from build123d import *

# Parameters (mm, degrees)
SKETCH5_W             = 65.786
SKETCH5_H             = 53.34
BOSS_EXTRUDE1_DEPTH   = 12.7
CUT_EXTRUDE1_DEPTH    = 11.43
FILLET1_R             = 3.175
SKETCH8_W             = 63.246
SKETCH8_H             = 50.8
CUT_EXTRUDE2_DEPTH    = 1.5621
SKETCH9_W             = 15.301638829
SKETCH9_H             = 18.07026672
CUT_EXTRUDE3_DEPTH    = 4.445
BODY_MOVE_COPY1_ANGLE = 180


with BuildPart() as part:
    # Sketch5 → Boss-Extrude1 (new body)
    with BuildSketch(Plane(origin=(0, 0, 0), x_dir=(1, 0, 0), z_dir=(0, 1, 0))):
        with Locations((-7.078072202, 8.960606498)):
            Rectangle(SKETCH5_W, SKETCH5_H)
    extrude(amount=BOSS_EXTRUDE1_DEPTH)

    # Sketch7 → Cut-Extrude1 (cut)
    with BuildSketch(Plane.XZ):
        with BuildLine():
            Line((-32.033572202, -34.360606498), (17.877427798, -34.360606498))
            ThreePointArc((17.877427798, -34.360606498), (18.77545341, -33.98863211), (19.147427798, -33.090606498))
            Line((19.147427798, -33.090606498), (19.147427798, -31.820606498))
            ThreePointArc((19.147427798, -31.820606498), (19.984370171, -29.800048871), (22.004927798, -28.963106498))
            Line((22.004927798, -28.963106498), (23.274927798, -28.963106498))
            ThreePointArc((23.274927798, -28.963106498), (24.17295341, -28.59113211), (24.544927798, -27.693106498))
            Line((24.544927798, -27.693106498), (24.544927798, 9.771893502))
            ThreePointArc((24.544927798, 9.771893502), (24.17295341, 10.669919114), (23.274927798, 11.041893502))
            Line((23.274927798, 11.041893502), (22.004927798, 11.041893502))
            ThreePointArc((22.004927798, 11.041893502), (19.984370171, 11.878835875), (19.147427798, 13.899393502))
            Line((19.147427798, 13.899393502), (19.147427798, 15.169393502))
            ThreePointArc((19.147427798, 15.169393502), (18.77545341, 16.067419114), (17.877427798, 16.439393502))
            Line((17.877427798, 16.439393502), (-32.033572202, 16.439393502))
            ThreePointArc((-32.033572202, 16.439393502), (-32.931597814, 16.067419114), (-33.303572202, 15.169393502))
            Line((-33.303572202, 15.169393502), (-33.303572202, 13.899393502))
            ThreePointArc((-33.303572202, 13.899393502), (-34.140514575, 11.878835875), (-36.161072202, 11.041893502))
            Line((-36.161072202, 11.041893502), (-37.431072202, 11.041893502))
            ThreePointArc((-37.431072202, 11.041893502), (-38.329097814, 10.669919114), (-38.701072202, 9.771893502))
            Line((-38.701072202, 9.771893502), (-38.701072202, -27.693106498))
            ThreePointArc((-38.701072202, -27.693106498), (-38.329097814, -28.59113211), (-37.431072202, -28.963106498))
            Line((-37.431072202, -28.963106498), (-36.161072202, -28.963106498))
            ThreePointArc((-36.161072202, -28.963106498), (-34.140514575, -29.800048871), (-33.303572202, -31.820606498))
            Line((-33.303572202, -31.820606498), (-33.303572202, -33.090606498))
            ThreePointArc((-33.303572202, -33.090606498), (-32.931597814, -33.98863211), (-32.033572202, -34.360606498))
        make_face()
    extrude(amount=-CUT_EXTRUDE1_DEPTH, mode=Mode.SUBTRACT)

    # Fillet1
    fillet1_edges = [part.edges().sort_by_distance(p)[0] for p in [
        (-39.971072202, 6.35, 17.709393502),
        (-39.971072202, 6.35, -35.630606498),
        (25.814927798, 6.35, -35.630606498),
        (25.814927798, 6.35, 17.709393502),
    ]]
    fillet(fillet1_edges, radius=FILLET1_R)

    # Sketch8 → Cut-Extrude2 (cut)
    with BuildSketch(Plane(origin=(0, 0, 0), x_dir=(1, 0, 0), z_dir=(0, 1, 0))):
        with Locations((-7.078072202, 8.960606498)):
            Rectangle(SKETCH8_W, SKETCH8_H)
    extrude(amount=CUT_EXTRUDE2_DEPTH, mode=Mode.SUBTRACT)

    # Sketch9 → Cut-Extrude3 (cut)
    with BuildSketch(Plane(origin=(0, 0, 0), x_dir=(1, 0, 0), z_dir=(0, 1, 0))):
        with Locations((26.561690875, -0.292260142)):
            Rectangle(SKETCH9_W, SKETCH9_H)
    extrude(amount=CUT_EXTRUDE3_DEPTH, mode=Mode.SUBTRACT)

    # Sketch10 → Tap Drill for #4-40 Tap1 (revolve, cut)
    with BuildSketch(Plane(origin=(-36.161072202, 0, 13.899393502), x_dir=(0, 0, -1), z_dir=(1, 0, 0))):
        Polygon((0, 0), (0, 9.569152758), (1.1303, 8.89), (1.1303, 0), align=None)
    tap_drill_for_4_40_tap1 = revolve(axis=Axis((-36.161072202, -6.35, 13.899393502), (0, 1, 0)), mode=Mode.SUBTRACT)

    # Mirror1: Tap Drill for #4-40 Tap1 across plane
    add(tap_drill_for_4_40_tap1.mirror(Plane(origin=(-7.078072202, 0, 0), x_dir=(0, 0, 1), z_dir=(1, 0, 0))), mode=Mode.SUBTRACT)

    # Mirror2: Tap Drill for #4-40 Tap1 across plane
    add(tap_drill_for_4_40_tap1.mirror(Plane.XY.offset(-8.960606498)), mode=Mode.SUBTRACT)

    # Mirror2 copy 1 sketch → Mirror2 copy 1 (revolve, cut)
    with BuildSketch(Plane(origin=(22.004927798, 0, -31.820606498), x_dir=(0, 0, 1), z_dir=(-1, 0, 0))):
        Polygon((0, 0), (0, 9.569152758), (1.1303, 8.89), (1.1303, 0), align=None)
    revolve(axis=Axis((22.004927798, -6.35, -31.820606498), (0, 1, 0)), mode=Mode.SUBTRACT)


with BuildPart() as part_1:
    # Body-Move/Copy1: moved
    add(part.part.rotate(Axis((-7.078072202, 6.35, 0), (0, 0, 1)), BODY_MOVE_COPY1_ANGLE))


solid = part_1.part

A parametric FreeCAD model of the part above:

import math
import FreeCAD as App
import Part
import Sketcher
from FreeCAD import Vector
Q = App.Units.Quantity


def edges_at(feature, points):
    """Names of the edges that pass closest to the given points."""
    edges = feature.Shape.Edges
    near = lambda p: min(range(len(edges)), key=lambda i: edges[i].distToShape(Part.Vertex(*p))[0])
    return sorted({f"Edge{near(p) + 1}" for p in points})


def add_polygon(sketch, points):
    """Adds a closed chain of lines whose ends are joined by coincident constraints."""
    first, n = sketch.GeometryCount, len(points)
    for a, b in zip(points, points[1:] + points[:1]):
        sketch.addGeometry(Part.LineSegment(App.Vector(*a, 0), App.Vector(*b, 0)), False)
    for i in range(n):
        sketch.addConstraint(Sketcher.Constraint("Coincident", first + i, 2, first + (i + 1) % n, 1))

doc = App.newDocument("Part")
body = doc.addObject("PartDesign::Body", "Body")

sketch1 = doc.addObject("Sketcher::SketchObject", "Sketch")
body.addObject(sketch1)
sketch1.AttachmentSupport = (doc.XZ_Plane, [""])
sketch1.MapMode = "FlatFace"
add_polygon(sketch1, [(-40, -36), (-40, 18), (26, 18), (26, -36)])
sketch1.addConstraint(Sketcher.Constraint("Vertical", 0))
sketch1.addConstraint(Sketcher.Constraint("Horizontal", 1))
sketch1.addConstraint(Sketcher.Constraint("Vertical", 2))
sketch1.addConstraint(Sketcher.Constraint("Horizontal", 3))
sketch1.addConstraint(Sketcher.Constraint("DistanceY", 0, 1, 0, 2, Q("2.1 in")))
sketch1.addConstraint(Sketcher.Constraint("DistanceX", 1, 1, 1, 2, Q("2.59 in")))
sketch1.addConstraint(Sketcher.Constraint("DistanceX", 0, 2, -1, 1, 39.971072))
sketch1.addConstraint(Sketcher.Constraint("DistanceY", -1, 1, 0, 2, 17.709394))
pad1 = doc.addObject("PartDesign::Pad", "Pad")
body.addObject(pad1)
pad1.Profile = sketch1
pad1.Length = Q("0.5 in")
pad1.Reversed = True

sketch2 = doc.addObject("Sketcher::SketchObject", "Sketch001")
body.addObject(sketch2)
sketch2.AttachmentSupport = (doc.XZ_Plane, [""])
sketch2.MapMode = "FlatFace"
sketch2.addGeometry(Part.LineSegment(Vector(-32, -34.4, 0), Vector(17.9, -34.4, 0)), False)
sketch2.addGeometry(Part.ArcOfCircle(Part.Circle(Vector(17.9, -33.1, 0), Vector(0, 0, 1), 1.3), math.radians(-90), math.radians(0)), False)
sketch2.addGeometry(Part.LineSegment(Vector(19.1, -33.1, 0), Vector(19.1, -31.8, 0)), False)
sketch2.addGeometry(Part.ArcOfCircle(Part.Circle(Vector(22, -31.8, 0), Vector(0, 0, 1), 2.9), math.radians(90), math.radians(180)), False)
sketch2.addGeometry(Part.LineSegment(Vector(22, -29, 0), Vector(23.3, -29, 0)), False)
sketch2.addGeometry(Part.ArcOfCircle(Part.Circle(Vector(23.3, -27.7, 0), Vector(0, 0, 1), 1.3), math.radians(-90), math.radians(0)), False)
sketch2.addGeometry(Part.LineSegment(Vector(24.5, -27.7, 0), Vector(24.5, 9.8, 0)), False)
sketch2.addGeometry(Part.ArcOfCircle(Part.Circle(Vector(23.3, 9.8, 0), Vector(0, 0, 1), 1.3), math.radians(0), math.radians(90)), False)
sketch2.addGeometry(Part.LineSegment(Vector(23.3, 11, 0), Vector(22, 11, 0)), False)
sketch2.addGeometry(Part.ArcOfCircle(Part.Circle(Vector(22, 13.9, 0), Vector(0, 0, 1), 2.9), math.radians(-180), math.radians(-90)), False)
sketch2.addGeometry(Part.LineSegment(Vector(19.1, 13.9, 0), Vector(19.1, 15.2, 0)), False)
sketch2.addGeometry(Part.ArcOfCircle(Part.Circle(Vector(17.9, 15.2, 0), Vector(0, 0, 1), 1.3), math.radians(0), math.radians(90)), False)
sketch2.addGeometry(Part.LineSegment(Vector(17.9, 16.4, 0), Vector(-32, 16.4, 0)), False)
sketch2.addGeometry(Part.ArcOfCircle(Part.Circle(Vector(-32, 15.2, 0), Vector(0, 0, 1), 1.3), math.radians(90), math.radians(180)), False)
sketch2.addGeometry(Part.LineSegment(Vector(-33.3, 15.2, 0), Vector(-33.3, 13.9, 0)), False)
sketch2.addGeometry(Part.ArcOfCircle(Part.Circle(Vector(-36.2, 13.9, 0), Vector(0, 0, 1), 2.9), math.radians(-90), math.radians(0)), False)
sketch2.addGeometry(Part.LineSegment(Vector(-36.2, 11, 0), Vector(-37.4, 11, 0)), False)
sketch2.addGeometry(Part.ArcOfCircle(Part.Circle(Vector(-37.4, 9.8, 0), Vector(0, 0, 1), 1.3), math.radians(90), math.radians(180)), False)
sketch2.addGeometry(Part.LineSegment(Vector(-38.7, 9.8, 0), Vector(-38.7, -27.7, 0)), False)
sketch2.addGeometry(Part.ArcOfCircle(Part.Circle(Vector(-37.4, -27.7, 0), Vector(0, 0, 1), 1.3), math.radians(180), math.radians(270)), False)
sketch2.addGeometry(Part.LineSegment(Vector(-37.4, -29, 0), Vector(-36.2, -29, 0)), False)
sketch2.addGeometry(Part.ArcOfCircle(Part.Circle(Vector(-36.2, -31.8, 0), Vector(0, 0, 1), 2.9), math.radians(0), math.radians(90)), False)
sketch2.addGeometry(Part.LineSegment(Vector(-33.3, -31.8, 0), Vector(-33.3, -33.1, 0)), False)
sketch2.addGeometry(Part.ArcOfCircle(Part.Circle(Vector(-32, -33.1, 0), Vector(0, 0, 1), 1.3), math.radians(180), math.radians(270)), False)
sketch2.addConstraint(Sketcher.Constraint("Tangent", 0, 2, 1, 1))
sketch2.addConstraint(Sketcher.Constraint("Tangent", 1, 2, 2, 1))
sketch2.addConstraint(Sketcher.Constraint("Tangent", 2, 2, 3, 2))
sketch2.addConstraint(Sketcher.Constraint("Tangent", 3, 1, 4, 1))
sketch2.addConstraint(Sketcher.Constraint("Tangent", 4, 2, 5, 1))
sketch2.addConstraint(Sketcher.Constraint("Tangent", 5, 2, 6, 1))
sketch2.addConstraint(Sketcher.Constraint("Tangent", 6, 2, 7, 1))
sketch2.addConstraint(Sketcher.Constraint("Tangent", 7, 2, 8, 1))
sketch2.addConstraint(Sketcher.Constraint("Tangent", 8, 2, 9, 2))
sketch2.addConstraint(Sketcher.Constraint("Tangent", 9, 1, 10, 1))
sketch2.addConstraint(Sketcher.Constraint("Tangent", 10, 2, 11, 1))
sketch2.addConstraint(Sketcher.Constraint("Tangent", 11, 2, 12, 1))
sketch2.addConstraint(Sketcher.Constraint("Tangent", 12, 2, 13, 1))
sketch2.addConstraint(Sketcher.Constraint("Tangent", 13, 2, 14, 1))
sketch2.addConstraint(Sketcher.Constraint("Tangent", 14, 2, 15, 2))
sketch2.addConstraint(Sketcher.Constraint("Tangent", 15, 1, 16, 1))
sketch2.addConstraint(Sketcher.Constraint("Tangent", 16, 2, 17, 1))
sketch2.addConstraint(Sketcher.Constraint("Tangent", 17, 2, 18, 1))
sketch2.addConstraint(Sketcher.Constraint("Tangent", 18, 2, 19, 1))
sketch2.addConstraint(Sketcher.Constraint("Tangent", 19, 2, 20, 1))
sketch2.addConstraint(Sketcher.Constraint("Tangent", 20, 2, 21, 2))
sketch2.addConstraint(Sketcher.Constraint("Tangent", 21, 1, 22, 1))
sketch2.addConstraint(Sketcher.Constraint("Tangent", 22, 2, 23, 1))
sketch2.addConstraint(Sketcher.Constraint("Tangent", 23, 2, 0, 1))
sketch2.addConstraint(Sketcher.Constraint("Horizontal", 0))
sketch2.addConstraint(Sketcher.Constraint("Vertical", 2))
sketch2.addConstraint(Sketcher.Constraint("Horizontal", 4))
sketch2.addConstraint(Sketcher.Constraint("Vertical", 6))
sketch2.addConstraint(Sketcher.Constraint("Horizontal", 8))
sketch2.addConstraint(Sketcher.Constraint("Vertical", 10))
sketch2.addConstraint(Sketcher.Constraint("Horizontal", 12))
sketch2.addConstraint(Sketcher.Constraint("Vertical", 14))
sketch2.addConstraint(Sketcher.Constraint("Horizontal", 16))
sketch2.addConstraint(Sketcher.Constraint("Vertical", 18))
sketch2.addConstraint(Sketcher.Constraint("Horizontal", 20))
sketch2.addConstraint(Sketcher.Constraint("Vertical", 22))
sketch2.addConstraint(Sketcher.Constraint("Equal", 1, 5))
sketch2.addConstraint(Sketcher.Constraint("Equal", 5, 7))
sketch2.addConstraint(Sketcher.Constraint("Equal", 3, 9))
sketch2.addConstraint(Sketcher.Constraint("Equal", 7, 11))
sketch2.addConstraint(Sketcher.Constraint("Equal", 11, 13))
sketch2.addConstraint(Sketcher.Constraint("Equal", 9, 15))
sketch2.addConstraint(Sketcher.Constraint("Equal", 13, 17))
sketch2.addConstraint(Sketcher.Constraint("Equal", 17, 19))
sketch2.addConstraint(Sketcher.Constraint("Equal", 15, 21))
sketch2.addConstraint(Sketcher.Constraint("Equal", 19, 23))
sketch2.addConstraint(Sketcher.Constraint("Horizontal", 9, 3, 15, 3))
sketch2.addConstraint(Sketcher.Constraint("Horizontal", 5, 3, 19, 3))
sketch2.addConstraint(Sketcher.Constraint("Vertical", 3, 3, 9, 3))
sketch2.addConstraint(Sketcher.Constraint("Vertical", 15, 3, 21, 3))
sketch2.addConstraint(Sketcher.Constraint("Equal", 8, 16))
sketch2.addConstraint(Sketcher.Constraint("Equal", 20, 2))
sketch2.addConstraint(Sketcher.Constraint("Equal", 2, 10))
sketch2.addConstraint(Sketcher.Constraint("Radius", 1, Q("0.05 in")))
sketch2.addConstraint(Sketcher.Constraint("DistanceX", 4, 1, 4, 2, Q("0.05 in")))
sketch2.addConstraint(Sketcher.Constraint("Radius", 3, Q("0.1125 in")))
sketch2.addConstraint(Sketcher.Constraint("DistanceY", 3, 3, 9, 3, Q("1.8 in")))
sketch2.addConstraint(Sketcher.Constraint("DistanceX", 0, 1, 0, 2, Q("1.965 in")))
sketch2.addConstraint(Sketcher.Constraint("DistanceX", -1, 1, 1, 3, 17.877428))
sketch2.addConstraint(Sketcher.Constraint("DistanceY", 1, 3, -1, 1, 33.090606))
pocket1 = doc.addObject("PartDesign::Pocket", "Pocket")
body.addObject(pocket1)
pocket1.Profile = sketch2
pocket1.Length = Q("0.45 in")
doc.recompute()

fillet = doc.addObject("PartDesign::Fillet", "Fillet")
body.addObject(fillet)
fillet.Base = (pocket1, edges_at(pocket1, [
    (-39.971, 6.35, 17.709),
    (-39.971, 6.35, -35.631),
    (25.815, 6.35, -35.631),
    (25.815, 6.35, 17.709),
]))
fillet.Radius = Q("0.125 in")

sketch3 = doc.addObject("Sketcher::SketchObject", "Sketch002")
body.addObject(sketch3)
sketch3.AttachmentSupport = (doc.XZ_Plane, [""])
sketch3.MapMode = "FlatFace"
add_polygon(sketch3, [(-39, -34), (-39, 16), (25, 16), (25, -34)])
sketch3.addConstraint(Sketcher.Constraint("Vertical", 0))
sketch3.addConstraint(Sketcher.Constraint("Horizontal", 1))
sketch3.addConstraint(Sketcher.Constraint("Vertical", 2))
sketch3.addConstraint(Sketcher.Constraint("Horizontal", 3))
sketch3.addConstraint(Sketcher.Constraint("DistanceY", 0, 1, 0, 2, Q("2 in")))
sketch3.addConstraint(Sketcher.Constraint("DistanceX", 1, 1, 1, 2, Q("2.49 in")))
sketch3.addConstraint(Sketcher.Constraint("DistanceX", 0, 2, -1, 1, 38.701072))
sketch3.addConstraint(Sketcher.Constraint("DistanceY", -1, 1, 0, 2, 16.439394))
pocket2 = doc.addObject("PartDesign::Pocket", "Pocket001")
body.addObject(pocket2)
pocket2.Profile = sketch3
pocket2.Length = Q("0.0615 in")

sketch4 = doc.addObject("Sketcher::SketchObject", "Sketch003")
body.addObject(sketch4)
sketch4.AttachmentSupport = (doc.XZ_Plane, [""])
sketch4.MapMode = "FlatFace"
add_polygon(sketch4, [(19, -9), (19, 9), (34, 9), (34, -9)])
sketch4.addConstraint(Sketcher.Constraint("Vertical", 0))
sketch4.addConstraint(Sketcher.Constraint("Horizontal", 1))
sketch4.addConstraint(Sketcher.Constraint("Vertical", 2))
sketch4.addConstraint(Sketcher.Constraint("Horizontal", 3))
sketch4.addConstraint(Sketcher.Constraint("DistanceX", 1, 1, 1, 2, 15.301639))
sketch4.addConstraint(Sketcher.Constraint("DistanceY", 0, 1, 0, 2, 18.070267))
sketch4.addConstraint(Sketcher.Constraint("DistanceX", -1, 1, 0, 2, 18.910871))
sketch4.addConstraint(Sketcher.Constraint("DistanceY", -1, 1, 0, 2, 9.327394))
pocket3 = doc.addObject("PartDesign::Pocket", "Pocket002")
body.addObject(pocket3)
pocket3.Profile = sketch4
pocket3.Length = Q("0.175 in")

sketch5 = doc.addObject("Sketcher::SketchObject", "Sketch004")
body.addObject(sketch5)
sketch5.AttachmentSupport = (doc.YZ_Plane, [""])
sketch5.MapMode = "FlatFace"
sketch5.AttachmentOffset = App.Placement(Vector(0, 0, -36.161072), App.Rotation())
add_polygon(sketch5, [(9.6, 13.9), (0, 13.9), (0, 12.8), (8.9, 12.8)])
sketch5.addGeometry(Part.LineSegment(Vector(0, 13.9, 0), Vector(9.6, 13.9, 0)), True)
sketch5.addConstraint(Sketcher.Constraint("Horizontal", 0))
sketch5.addConstraint(Sketcher.Constraint("Vertical", 1))
sketch5.addConstraint(Sketcher.Constraint("Horizontal", 2))
sketch5.addConstraint(Sketcher.Constraint("Horizontal", 4))
sketch5.addConstraint(Sketcher.Constraint("Coincident", 4, 1, 0, 2))
sketch5.addConstraint(Sketcher.Constraint("PointOnObject", 0, 2, -2))
sketch5.addConstraint(Sketcher.Constraint("Equal", 0, 4))
sketch5.addConstraint(Sketcher.Constraint("Angle", 3, Q("59 deg")))
sketch5.addConstraint(Sketcher.Constraint("DistanceX", 2, 1, 2, 2, Q("0.35 in")))
sketch5.addConstraint(Sketcher.Constraint("DistanceY", 1, 2, 1, 1, Q("0.0445 in")))
sketch5.addConstraint(Sketcher.Constraint("DistanceY", -1, 1, 0, 2, 13.899394))
groove = doc.addObject("PartDesign::Groove", "Groove")
body.addObject(groove)
groove.Profile = sketch5
groove.ReferenceAxis = (sketch5, ["Axis0"])
groove.Angle = 360
doc.recompute()

datumplane = doc.addObject("PartDesign::Plane", "DatumPlane")
body.addObject(datumplane)
datumplane.AttachmentSupport = (doc.YZ_Plane, [""])
datumplane.MapMode = "FlatFace"
datumplane.AttachmentOffset = App.Placement(Vector(0, 0, -7.078072), App.Rotation())
mirrored = doc.addObject("PartDesign::Mirrored", "Mirrored")
body.addObject(mirrored)
mirrored.Originals = [groove]
mirrored.MirrorPlane = (datumplane, [""])
body.Tip = mirrored
doc.recompute()

datumplane2 = doc.addObject("PartDesign::Plane", "DatumPlane001")
body.addObject(datumplane2)
datumplane2.AttachmentSupport = (doc.XY_Plane, [""])
datumplane2.MapMode = "FlatFace"
datumplane2.AttachmentOffset = App.Placement(Vector(0, 0, -8.960606), App.Rotation())
mirrored2 = doc.addObject("PartDesign::Mirrored", "Mirrored001")
body.addObject(mirrored2)
mirrored2.Originals = [groove]
mirrored2.MirrorPlane = (datumplane2, [""])
body.Tip = mirrored2

sketch6 = doc.addObject("Sketcher::SketchObject", "Sketch005")
body.addObject(sketch6)
sketch6.AttachmentSupport = (doc.YZ_Plane, [""])
sketch6.MapMode = "FlatFace"
sketch6.AttachmentOffset = App.Placement(Vector(0, 0, 22.004928), App.Rotation())
add_polygon(sketch6, [(9.6, -31.8), (0, -31.8), (0, -30.7), (8.9, -30.7)])
sketch6.addGeometry(Part.LineSegment(Vector(0, -31.8, 0), Vector(9.6, -31.8, 0)), True)
sketch6.addConstraint(Sketcher.Constraint("Horizontal", 0))
sketch6.addConstraint(Sketcher.Constraint("Vertical", 1))
sketch6.addConstraint(Sketcher.Constraint("Horizontal", 2))
sketch6.addConstraint(Sketcher.Constraint("Horizontal", 4))
sketch6.addConstraint(Sketcher.Constraint("Coincident", 4, 1, 0, 2))
sketch6.addConstraint(Sketcher.Constraint("PointOnObject", 0, 2, -2))
sketch6.addConstraint(Sketcher.Constraint("Equal", 0, 4))
sketch6.addConstraint(Sketcher.Constraint("Angle", 3, Q("-59 deg")))
sketch6.addConstraint(Sketcher.Constraint("DistanceX", 2, 1, 2, 2, Q("0.35 in")))
sketch6.addConstraint(Sketcher.Constraint("DistanceY", 1, 1, 1, 2, Q("0.0445 in")))
sketch6.addConstraint(Sketcher.Constraint("DistanceY", 0, 2, -1, 1, 31.820606))
groove2 = doc.addObject("PartDesign::Groove", "Groove001")
body.addObject(groove2)
groove2.Profile = sketch6
groove2.ReferenceAxis = (sketch6, ["Axis0"])
groove2.Angle = 360
body2 = doc.addObject("PartDesign::Body", "Body001")
doc.recompute()

body.Placement = App.Placement(Vector(-14.156144, 12.7, 0), App.Rotation(Vector(0, 0, 1), 180))
boolean = doc.addObject("PartDesign::Boolean", "Boolean")
body2.addObject(boolean)
boolean.Type = "Fuse"
boolean.addObjects([body])

doc.recompute()
